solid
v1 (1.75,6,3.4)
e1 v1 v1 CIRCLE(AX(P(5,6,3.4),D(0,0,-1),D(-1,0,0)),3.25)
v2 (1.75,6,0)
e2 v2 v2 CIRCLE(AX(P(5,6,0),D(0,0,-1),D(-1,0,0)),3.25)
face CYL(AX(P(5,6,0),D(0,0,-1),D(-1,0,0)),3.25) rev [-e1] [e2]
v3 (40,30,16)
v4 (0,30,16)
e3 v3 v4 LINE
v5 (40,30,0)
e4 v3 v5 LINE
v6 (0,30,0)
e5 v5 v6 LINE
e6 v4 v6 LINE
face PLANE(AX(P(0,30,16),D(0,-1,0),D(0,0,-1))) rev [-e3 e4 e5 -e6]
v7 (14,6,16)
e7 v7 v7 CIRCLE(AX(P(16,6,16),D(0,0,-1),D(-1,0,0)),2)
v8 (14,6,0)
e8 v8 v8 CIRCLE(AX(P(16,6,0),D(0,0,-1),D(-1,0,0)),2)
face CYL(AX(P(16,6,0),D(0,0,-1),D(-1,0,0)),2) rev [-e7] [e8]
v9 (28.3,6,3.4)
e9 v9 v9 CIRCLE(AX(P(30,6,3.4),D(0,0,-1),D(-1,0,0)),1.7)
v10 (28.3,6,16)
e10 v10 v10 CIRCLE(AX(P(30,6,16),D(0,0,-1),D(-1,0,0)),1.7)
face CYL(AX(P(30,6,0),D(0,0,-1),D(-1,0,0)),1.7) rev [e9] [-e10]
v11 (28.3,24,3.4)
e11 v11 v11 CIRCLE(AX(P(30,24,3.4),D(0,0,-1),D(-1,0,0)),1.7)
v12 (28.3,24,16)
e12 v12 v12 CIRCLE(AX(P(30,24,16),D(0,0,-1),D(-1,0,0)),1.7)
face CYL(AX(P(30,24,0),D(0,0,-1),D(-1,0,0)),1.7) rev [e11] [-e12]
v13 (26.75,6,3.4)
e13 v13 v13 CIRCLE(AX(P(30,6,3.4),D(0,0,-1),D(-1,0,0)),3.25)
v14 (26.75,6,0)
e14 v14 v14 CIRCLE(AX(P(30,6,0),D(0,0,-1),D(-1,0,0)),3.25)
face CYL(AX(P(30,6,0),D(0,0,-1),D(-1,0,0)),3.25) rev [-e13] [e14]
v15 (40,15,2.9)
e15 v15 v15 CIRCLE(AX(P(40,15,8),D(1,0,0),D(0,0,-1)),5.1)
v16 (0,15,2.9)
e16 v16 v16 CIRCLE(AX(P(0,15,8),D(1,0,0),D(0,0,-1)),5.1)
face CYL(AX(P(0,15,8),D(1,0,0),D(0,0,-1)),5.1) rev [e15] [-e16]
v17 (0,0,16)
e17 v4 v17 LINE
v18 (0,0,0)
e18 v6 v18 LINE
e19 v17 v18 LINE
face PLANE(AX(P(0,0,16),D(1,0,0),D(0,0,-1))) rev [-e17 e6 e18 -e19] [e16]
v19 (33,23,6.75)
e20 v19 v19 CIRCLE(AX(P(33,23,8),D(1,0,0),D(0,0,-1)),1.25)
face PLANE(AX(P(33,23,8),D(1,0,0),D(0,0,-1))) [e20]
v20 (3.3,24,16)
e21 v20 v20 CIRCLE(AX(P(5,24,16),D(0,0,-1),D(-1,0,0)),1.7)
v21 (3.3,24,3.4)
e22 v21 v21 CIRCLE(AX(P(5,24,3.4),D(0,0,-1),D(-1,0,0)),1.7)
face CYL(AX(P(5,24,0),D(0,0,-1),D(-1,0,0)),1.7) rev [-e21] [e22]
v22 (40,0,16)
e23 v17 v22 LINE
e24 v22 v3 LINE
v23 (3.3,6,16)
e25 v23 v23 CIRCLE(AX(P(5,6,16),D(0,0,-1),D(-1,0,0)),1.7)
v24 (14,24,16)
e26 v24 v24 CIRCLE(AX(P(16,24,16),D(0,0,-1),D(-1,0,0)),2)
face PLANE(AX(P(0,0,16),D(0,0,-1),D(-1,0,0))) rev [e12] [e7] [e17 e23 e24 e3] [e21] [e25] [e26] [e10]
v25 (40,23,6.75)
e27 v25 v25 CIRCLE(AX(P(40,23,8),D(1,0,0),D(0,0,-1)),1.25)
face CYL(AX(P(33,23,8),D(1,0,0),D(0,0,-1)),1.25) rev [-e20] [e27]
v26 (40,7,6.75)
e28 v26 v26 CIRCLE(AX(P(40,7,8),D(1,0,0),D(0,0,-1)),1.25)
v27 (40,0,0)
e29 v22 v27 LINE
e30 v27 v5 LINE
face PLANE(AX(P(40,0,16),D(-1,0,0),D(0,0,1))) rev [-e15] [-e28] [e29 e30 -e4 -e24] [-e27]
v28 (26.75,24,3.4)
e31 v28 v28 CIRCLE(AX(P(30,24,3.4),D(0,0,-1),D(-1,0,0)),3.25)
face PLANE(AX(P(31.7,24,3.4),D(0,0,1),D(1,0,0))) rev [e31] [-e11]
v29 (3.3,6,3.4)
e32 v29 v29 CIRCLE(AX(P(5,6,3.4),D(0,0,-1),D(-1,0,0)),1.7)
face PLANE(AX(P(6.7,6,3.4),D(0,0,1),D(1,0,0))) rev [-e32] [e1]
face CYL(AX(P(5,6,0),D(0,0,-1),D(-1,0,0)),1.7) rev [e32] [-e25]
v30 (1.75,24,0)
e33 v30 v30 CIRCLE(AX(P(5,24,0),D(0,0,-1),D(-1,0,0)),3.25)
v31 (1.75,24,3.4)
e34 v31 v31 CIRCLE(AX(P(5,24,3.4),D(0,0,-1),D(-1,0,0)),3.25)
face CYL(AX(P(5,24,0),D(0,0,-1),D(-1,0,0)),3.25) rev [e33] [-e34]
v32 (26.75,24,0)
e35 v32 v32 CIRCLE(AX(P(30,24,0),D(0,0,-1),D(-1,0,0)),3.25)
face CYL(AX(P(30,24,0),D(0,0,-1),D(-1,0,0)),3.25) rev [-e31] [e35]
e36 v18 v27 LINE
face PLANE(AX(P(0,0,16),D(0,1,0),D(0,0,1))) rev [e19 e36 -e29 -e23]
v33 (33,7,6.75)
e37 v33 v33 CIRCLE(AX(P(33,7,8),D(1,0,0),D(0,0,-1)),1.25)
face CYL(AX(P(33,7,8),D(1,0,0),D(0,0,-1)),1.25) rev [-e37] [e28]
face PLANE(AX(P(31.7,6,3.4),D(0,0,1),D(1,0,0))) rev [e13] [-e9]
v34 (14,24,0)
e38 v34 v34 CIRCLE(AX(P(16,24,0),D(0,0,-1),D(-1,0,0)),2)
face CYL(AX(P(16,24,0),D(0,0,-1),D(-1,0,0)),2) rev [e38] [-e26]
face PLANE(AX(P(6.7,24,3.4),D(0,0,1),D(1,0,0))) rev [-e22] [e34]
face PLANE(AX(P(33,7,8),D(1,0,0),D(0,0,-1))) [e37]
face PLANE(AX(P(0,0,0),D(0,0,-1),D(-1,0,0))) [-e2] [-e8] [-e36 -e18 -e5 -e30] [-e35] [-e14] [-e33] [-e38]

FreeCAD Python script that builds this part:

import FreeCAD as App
import Part
import Sketcher
from FreeCAD import Vector


def add_polygon(sketch, points):
    """Adds a closed chain of lines whose ends are joined by coincident constraints."""
    first, n = sketch.GeometryCount, len(points)
    for a, b in zip(points, points[1:] + points[:1]):
        sketch.addGeometry(Part.LineSegment(App.Vector(*a, 0), App.Vector(*b, 0)), False)
    for i in range(n):
        sketch.addConstraint(Sketcher.Constraint("Coincident", first + i, 2, first + (i + 1) % n, 1))

doc = App.newDocument("Part")
body = doc.addObject("PartDesign::Body", "Body")

sketch1 = doc.addObject("Sketcher::SketchObject", "Sketch")
body.addObject(sketch1)
sketch1.AttachmentSupport = (doc.XY_Plane, [""])
sketch1.MapMode = "FlatFace"
add_polygon(sketch1, [(0, 30), (0, 0), (40, 0), (40, 30)])
sketch1.addConstraint(Sketcher.Constraint("Vertical", 0))
sketch1.addConstraint(Sketcher.Constraint("Horizontal", 1))
sketch1.addConstraint(Sketcher.Constraint("Vertical", 2))
sketch1.addConstraint(Sketcher.Constraint("Horizontal", 3))
sketch1.addConstraint(Sketcher.Constraint("Coincident", 0, 2, -1, 1))
sketch1.addConstraint(Sketcher.Constraint("DistanceX", 1, 1, 1, 2, 40.0))
sketch1.addConstraint(Sketcher.Constraint("DistanceY", 0, 2, 0, 1, 30.0))
pad1 = doc.addObject("PartDesign::Pad", "Pad")
body.addObject(pad1)
pad1.Profile = sketch1
pad1.Length = 16

sketch2 = doc.addObject("Sketcher::SketchObject", "Sketch001")
body.addObject(sketch2)
sketch2.AttachmentSupport = (doc.YZ_Plane, [""])
sketch2.MapMode = "FlatFace"
sketch2.AttachmentOffset = App.Placement(Vector(0, 0, 40), App.Rotation())
sketch2.addGeometry(Part.Circle(Vector(15, 8, 0), Vector(0, 0, 1), 5), False)
sketch2.addConstraint(Sketcher.Constraint("Diameter", 0, 10.2))
sketch2.addConstraint(Sketcher.Constraint("DistanceX", -1, 1, 0, 3, 15.0))
sketch2.addConstraint(Sketcher.Constraint("DistanceY", -1, 1, 0, 3, 8.0))
pocket1 = doc.addObject("PartDesign::Pocket", "Pocket")
body.addObject(pocket1)
pocket1.Profile = sketch2
pocket1.Type = "ThroughAll"

sketch3 = doc.addObject("Sketcher::SketchObject", "Sketch002")
body.addObject(sketch3)
sketch3.AttachmentSupport = (doc.XY_Plane, [""])
sketch3.MapMode = "FlatFace"
sketch3.addGeometry(Part.Circle(Vector(5, 6, 0), Vector(0, 0, 1), 1.7), False)
sketch3.addGeometry(Part.Circle(Vector(30, 6, 0), Vector(0, 0, 1), 1.7), False)
sketch3.addGeometry(Part.Circle(Vector(30, 24, 0), Vector(0, 0, 1), 1.7), False)
sketch3.addGeometry(Part.Circle(Vector(5, 24, 0), Vector(0, 0, 1), 1.7), False)
sketch3.addConstraint(Sketcher.Constraint("Equal", 0, 1))
sketch3.addConstraint(Sketcher.Constraint("Equal", 1, 2))
sketch3.addConstraint(Sketcher.Constraint("Equal", 2, 3))
sketch3.addConstraint(Sketcher.Constraint("Horizontal", 0, 3, 1, 3))
sketch3.addConstraint(Sketcher.Constraint("Horizontal", 2, 3, 3, 3))
sketch3.addConstraint(Sketcher.Constraint("Vertical", 1, 3, 2, 3))
sketch3.addConstraint(Sketcher.Constraint("Vertical", 0, 3, 3, 3))
sketch3.addConstraint(Sketcher.Constraint("Diameter", 0, 3.4))
sketch3.addConstraint(Sketcher.Constraint("DistanceX", -1, 1, 0, 3, 5.0))
sketch3.addConstraint(Sketcher.Constraint("DistanceY", -1, 1, 0, 3, 6.0))
sketch3.addConstraint(Sketcher.Constraint("DistanceX", -1, 1, 1, 3, 30.0))
sketch3.addConstraint(Sketcher.Constraint("DistanceY", -1, 1, 2, 3, 24.0))
doc.recompute()
hole = doc.addObject("PartDesign::Hole", "Hole")
body.addObject(hole)
hole.Profile = sketch3
hole.ThreadType = "None"
hole.Diameter = 3.4
hole.DepthType = "ThroughAll"
hole.HoleCutType = "Counterbore"
hole.HoleCutDiameter = 6.5
hole.HoleCutDepth = 3.4
hole.Reversed = True

sketch4 = doc.addObject("Sketcher::SketchObject", "Sketch003")
body.addObject(sketch4)
sketch4.AttachmentSupport = (doc.XY_Plane, [""])
sketch4.MapMode = "FlatFace"
sketch4.addGeometry(Part.Circle(Vector(16, 6, 0), Vector(0, 0, 1), 2), False)
sketch4.addGeometry(Part.Circle(Vector(16, 24, 0), Vector(0, 0, 1), 2), False)
sketch4.addConstraint(Sketcher.Constraint("Equal", 0, 1))
sketch4.addConstraint(Sketcher.Constraint("Vertical", 0, 3, 1, 3))
sketch4.addConstraint(Sketcher.Constraint("Diameter", 0, 4.0))
sketch4.addConstraint(Sketcher.Constraint("DistanceX", -1, 1, 0, 3, 16.0))
sketch4.addConstraint(Sketcher.Constraint("DistanceY", -1, 1, 0, 3, 6.0))
sketch4.addConstraint(Sketcher.Constraint("DistanceY", -1, 1, 1, 3, 24.0))
doc.recompute()
hole2 = doc.addObject("PartDesign::Hole", "Hole001")
body.addObject(hole2)
hole2.Profile = sketch4
hole2.ThreadType = "None"
hole2.Diameter = 4
hole2.DepthType = "ThroughAll"
hole2.Reversed = True

sketch5 = doc.addObject("Sketcher::SketchObject", "Sketch004")
body.addObject(sketch5)
sketch5.AttachmentSupport = (doc.YZ_Plane, [""])
sketch5.MapMode = "FlatFace"
sketch5.AttachmentOffset = App.Placement(Vector(0, 0, 40), App.Rotation())
sketch5.addGeometry(Part.Circle(Vector(23, 8, 0), Vector(0, 0, 1), 1.2), False)
sketch5.addGeometry(Part.Circle(Vector(7, 8, 0), Vector(0, 0, 1), 1.2), False)
sketch5.addConstraint(Sketcher.Constraint("Equal", 0, 1))
sketch5.addConstraint(Sketcher.Constraint("Horizontal", 0, 3, 1, 3))
sketch5.addConstraint(Sketcher.Constraint("Diameter", 0, 2.5))
sketch5.addConstraint(Sketcher.Constraint("DistanceX", -1, 1, 0, 3, 23.0))
sketch5.addConstraint(Sketcher.Constraint("DistanceY", -1, 1, 0, 3, 8.0))
sketch5.addConstraint(Sketcher.Constraint("DistanceX", -1, 1, 1, 3, 7.0))
pocket2 = doc.addObject("PartDesign::Pocket", "Pocket001")
body.addObject(pocket2)
pocket2.Profile = sketch5
pocket2.Length = 7

doc.recompute()
